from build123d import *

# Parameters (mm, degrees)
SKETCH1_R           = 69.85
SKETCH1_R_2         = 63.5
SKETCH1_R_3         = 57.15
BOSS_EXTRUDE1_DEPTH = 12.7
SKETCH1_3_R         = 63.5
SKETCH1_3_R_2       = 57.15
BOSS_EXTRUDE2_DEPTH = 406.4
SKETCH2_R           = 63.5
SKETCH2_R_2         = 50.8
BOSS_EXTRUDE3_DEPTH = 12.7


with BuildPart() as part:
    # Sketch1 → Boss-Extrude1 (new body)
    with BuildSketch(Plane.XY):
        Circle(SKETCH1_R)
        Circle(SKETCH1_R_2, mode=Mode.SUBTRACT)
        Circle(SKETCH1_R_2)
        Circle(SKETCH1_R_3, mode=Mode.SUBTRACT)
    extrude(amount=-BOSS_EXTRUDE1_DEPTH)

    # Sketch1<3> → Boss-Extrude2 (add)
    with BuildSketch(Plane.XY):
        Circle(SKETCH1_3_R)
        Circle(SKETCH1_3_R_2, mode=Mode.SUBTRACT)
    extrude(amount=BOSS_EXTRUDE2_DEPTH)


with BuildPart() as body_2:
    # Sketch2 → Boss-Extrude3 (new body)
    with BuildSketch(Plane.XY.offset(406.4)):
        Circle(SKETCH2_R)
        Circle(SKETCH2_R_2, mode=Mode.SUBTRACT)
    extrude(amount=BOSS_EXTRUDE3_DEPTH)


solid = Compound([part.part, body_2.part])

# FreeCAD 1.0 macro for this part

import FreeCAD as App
import Part
import Sketcher

V = App.Vector
Q = App.Units.Quantity

doc = App.newDocument("Part")
body = doc.addObject("PartDesign::Body", "Body")

# Sketch on XY plane
sketch1 = body.newObject("Sketcher::SketchObject", "Sketch")
sketch1.AttachmentSupport = (doc.getObject("XY_Plane"), [""])
sketch1.MapMode = "FlatFace"
sketch1.addGeometry(Part.Circle(V(0, 0, 0), V(0, 0, 1), 70), False)
sketch1.addGeometry(Part.Circle(V(0, 0, 0), V(0, 0, 1), 57), False)
sketch1.addConstraint(Sketcher.Constraint("Coincident", 0, 3, -1, 1))
sketch1.addConstraint(Sketcher.Constraint("Coincident", 1, 3, -1, 1))
sketch1.addConstraint(Sketcher.Constraint("Diameter", 0, Q("5.5 in")))
sketch1.addConstraint(Sketcher.Constraint("Diameter", 1, Q("4.5 in")))
pad1 = body.newObject("PartDesign::Pad", "Pad")
pad1.Profile = sketch1
pad1.Length = Q("0.5 in")
pad1.Reversed = True

# Sketch on XY plane
sketch2 = body.newObject("Sketcher::SketchObject", "Sketch001")
sketch2.AttachmentSupport = (doc.getObject("XY_Plane"), [""])
sketch2.MapMode = "FlatFace"
sketch2.addGeometry(Part.Circle(V(0, 0, 0), V(0, 0, 1), 64), False)
sketch2.addGeometry(Part.Circle(V(0, 0, 0), V(0, 0, 1), 57), False)
sketch2.addConstraint(Sketcher.Constraint("Coincident", 0, 3, -1, 1))
sketch2.addConstraint(Sketcher.Constraint("Coincident", 1, 3, -1, 1))
sketch2.addConstraint(Sketcher.Constraint("Diameter", 0, Q("5 in")))
sketch2.addConstraint(Sketcher.Constraint("Diameter", 1, Q("4.5 in")))
pad2 = body.newObject("PartDesign::Pad", "Pad001")
pad2.Profile = sketch2
pad2.Length = Q("16 in")
body2 = doc.addObject("PartDesign::Body", "Body001")

# Sketch on XY plane
sketch3 = body2.newObject("Sketcher::SketchObject", "Sketch002")
sketch3.AttachmentSupport = (doc.getObject("XY_Plane001"), [""])
sketch3.MapMode = "FlatFace"
sketch3.AttachmentOffset = App.Placement(V(0, 0, 16 * 25.4), App.Rotation())
sketch3.addGeometry(Part.Circle(V(0, 0, 0), V(0, 0, 1), 64), False)
sketch3.addGeometry(Part.Circle(V(0, 0, 0), V(0, 0, 1), 51), False)
sketch3.addConstraint(Sketcher.Constraint("Coincident", 0, 3, -1, 1))
sketch3.addConstraint(Sketcher.Constraint("Coincident", 1, 3, -1, 1))
sketch3.addConstraint(Sketcher.Constraint("Diameter", 0, Q("5 in")))
sketch3.addConstraint(Sketcher.Constraint("Diameter", 1, Q("4 in")))
pad3 = body2.newObject("PartDesign::Pad", "Pad002")
pad3.Profile = sketch3
pad3.Length = Q("0.5 in")

doc.recompute()
